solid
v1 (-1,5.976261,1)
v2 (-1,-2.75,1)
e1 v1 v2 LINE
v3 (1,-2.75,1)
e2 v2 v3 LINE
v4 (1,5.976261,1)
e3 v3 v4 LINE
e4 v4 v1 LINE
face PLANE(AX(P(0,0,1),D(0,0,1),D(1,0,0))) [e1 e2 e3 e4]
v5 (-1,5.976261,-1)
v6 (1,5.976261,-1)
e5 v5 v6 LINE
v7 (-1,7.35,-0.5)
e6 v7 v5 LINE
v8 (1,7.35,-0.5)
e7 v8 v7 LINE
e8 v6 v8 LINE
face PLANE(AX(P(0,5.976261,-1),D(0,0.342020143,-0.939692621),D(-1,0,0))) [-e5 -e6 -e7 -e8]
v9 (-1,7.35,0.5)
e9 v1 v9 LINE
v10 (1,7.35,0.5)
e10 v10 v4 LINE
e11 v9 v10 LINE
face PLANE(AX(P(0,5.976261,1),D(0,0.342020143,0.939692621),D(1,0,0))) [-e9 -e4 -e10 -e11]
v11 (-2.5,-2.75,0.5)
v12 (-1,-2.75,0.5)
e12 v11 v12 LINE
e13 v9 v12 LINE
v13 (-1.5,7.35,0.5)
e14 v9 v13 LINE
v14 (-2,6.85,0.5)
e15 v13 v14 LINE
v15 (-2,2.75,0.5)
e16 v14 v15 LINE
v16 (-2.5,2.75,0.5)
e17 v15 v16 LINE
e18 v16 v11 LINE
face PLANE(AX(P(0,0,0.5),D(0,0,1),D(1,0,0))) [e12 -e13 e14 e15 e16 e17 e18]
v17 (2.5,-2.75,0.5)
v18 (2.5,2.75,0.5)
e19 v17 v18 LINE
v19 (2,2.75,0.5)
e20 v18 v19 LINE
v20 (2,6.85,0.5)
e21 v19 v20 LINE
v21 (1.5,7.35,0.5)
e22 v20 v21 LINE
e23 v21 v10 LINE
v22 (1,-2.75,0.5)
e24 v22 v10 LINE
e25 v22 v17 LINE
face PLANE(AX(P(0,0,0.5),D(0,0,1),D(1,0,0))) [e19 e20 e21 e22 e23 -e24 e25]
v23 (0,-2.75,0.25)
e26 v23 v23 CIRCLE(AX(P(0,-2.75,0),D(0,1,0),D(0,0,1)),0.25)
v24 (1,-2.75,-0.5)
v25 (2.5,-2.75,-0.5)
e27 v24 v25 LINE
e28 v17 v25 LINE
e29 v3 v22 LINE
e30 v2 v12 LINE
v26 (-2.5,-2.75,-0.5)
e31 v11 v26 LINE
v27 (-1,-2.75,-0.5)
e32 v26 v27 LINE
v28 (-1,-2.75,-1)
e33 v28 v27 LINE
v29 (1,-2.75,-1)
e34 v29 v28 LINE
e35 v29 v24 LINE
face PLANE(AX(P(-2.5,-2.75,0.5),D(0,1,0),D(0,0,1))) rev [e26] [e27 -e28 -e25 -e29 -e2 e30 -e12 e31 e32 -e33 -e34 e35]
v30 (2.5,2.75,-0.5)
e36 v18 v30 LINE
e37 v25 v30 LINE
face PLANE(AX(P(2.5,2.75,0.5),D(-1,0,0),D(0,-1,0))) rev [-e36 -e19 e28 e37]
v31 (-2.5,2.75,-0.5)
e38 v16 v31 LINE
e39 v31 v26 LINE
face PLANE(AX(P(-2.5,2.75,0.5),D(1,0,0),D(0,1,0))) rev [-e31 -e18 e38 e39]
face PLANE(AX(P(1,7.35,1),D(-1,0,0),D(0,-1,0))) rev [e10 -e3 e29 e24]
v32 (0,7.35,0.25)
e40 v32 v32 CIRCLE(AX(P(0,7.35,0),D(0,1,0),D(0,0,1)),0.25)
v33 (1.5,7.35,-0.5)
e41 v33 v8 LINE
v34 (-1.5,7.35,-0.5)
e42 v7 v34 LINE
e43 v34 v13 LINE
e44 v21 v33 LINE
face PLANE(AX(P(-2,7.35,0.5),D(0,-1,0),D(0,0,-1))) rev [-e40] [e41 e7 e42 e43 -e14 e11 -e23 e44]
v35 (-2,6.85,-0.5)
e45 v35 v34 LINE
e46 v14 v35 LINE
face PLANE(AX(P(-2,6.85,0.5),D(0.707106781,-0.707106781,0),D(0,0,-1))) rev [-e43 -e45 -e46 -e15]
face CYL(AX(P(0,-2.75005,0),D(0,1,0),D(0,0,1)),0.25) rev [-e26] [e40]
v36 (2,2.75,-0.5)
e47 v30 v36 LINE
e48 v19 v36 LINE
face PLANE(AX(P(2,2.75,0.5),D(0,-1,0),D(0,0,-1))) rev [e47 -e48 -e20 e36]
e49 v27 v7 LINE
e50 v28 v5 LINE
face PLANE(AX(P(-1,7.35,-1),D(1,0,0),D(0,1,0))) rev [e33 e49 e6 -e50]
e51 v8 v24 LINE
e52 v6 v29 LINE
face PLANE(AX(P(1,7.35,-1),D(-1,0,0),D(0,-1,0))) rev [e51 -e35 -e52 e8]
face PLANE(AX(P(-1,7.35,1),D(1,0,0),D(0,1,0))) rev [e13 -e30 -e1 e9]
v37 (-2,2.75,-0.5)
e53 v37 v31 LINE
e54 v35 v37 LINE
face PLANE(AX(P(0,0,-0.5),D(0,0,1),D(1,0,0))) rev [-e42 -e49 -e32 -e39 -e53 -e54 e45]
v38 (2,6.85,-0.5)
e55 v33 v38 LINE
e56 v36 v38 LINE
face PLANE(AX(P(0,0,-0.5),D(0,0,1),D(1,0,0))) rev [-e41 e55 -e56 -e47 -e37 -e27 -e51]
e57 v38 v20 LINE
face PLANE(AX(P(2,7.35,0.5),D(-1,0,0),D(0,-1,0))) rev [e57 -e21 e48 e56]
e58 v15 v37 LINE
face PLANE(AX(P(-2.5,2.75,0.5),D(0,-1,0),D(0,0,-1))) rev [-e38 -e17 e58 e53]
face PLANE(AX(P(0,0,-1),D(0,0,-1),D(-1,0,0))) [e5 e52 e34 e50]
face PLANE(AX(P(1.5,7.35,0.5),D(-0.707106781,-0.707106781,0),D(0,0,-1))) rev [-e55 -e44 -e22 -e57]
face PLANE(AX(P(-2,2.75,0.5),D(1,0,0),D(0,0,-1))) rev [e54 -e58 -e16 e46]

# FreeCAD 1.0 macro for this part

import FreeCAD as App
import Part
import Sketcher
from FreeCAD import Vector


def edges_at(feature, points):
    """Names of the edges that pass closest to the given points."""
    edges = feature.Shape.Edges
    near = lambda p: min(range(len(edges)), key=lambda i: edges[i].distToShape(Part.Vertex(*p))[0])
    return sorted({f"Edge{near(p) + 1}" for p in points})


def add_polygon(sketch, points):
    """Adds a closed chain of lines whose ends are joined by coincident constraints."""
    first, n = sketch.GeometryCount, len(points)
    for a, b in zip(points, points[1:] + points[:1]):
        sketch.addGeometry(Part.LineSegment(App.Vector(*a, 0), App.Vector(*b, 0)), False)
    for i in range(n):
        sketch.addConstraint(Sketcher.Constraint("Coincident", first + i, 2, first + (i + 1) % n, 1))

doc = App.newDocument("Part")
body = doc.addObject("PartDesign::Body", "Body")

# Sketch on XY plane
sketch1 = body.newObject("Sketcher::SketchObject", "Sketch")
sketch1.AttachmentSupport = (doc.getObject("XY_Plane"), [""])
sketch1.MapMode = "FlatFace"
add_polygon(sketch1, [(-2, 7.35), (-2, 2.75), (-2.5, 2.75), (-2.5, -2.75), (2.5, -2.75), (2.5, 2.75), (2, 2.75), (2, 7.35)])  # lines 0-7
sketch1.addConstraint([
    Sketcher.Constraint("Vertical", 0),
    Sketcher.Constraint("Horizontal", 1),
    Sketcher.Constraint("Vertical", 2),
    Sketcher.Constraint("Horizontal", 3),
    Sketcher.Constraint("Vertical", 4),
    Sketcher.Constraint("Horizontal", 5),
    Sketcher.Constraint("Vertical", 6),
    Sketcher.Constraint("Horizontal", 7),
    Sketcher.Constraint("Symmetric", 1, 2, 3, 2, -1, 1),
    Sketcher.Constraint("Symmetric", 0, 2, 5, 2, -2),
    Sketcher.Constraint("DistanceX", 3, 1, 3, 2, 5.0),
    Sketcher.Constraint("DistanceX", 7, 2, 7, 1, 4.0),
    Sketcher.Constraint("DistanceY", 0, 2, 0, 1, 4.6),
    Sketcher.Constraint("DistanceY", 2, 2, 2, 1, 5.5),
])
pad1 = body.newObject("PartDesign::Pad", "Pad")
pad1.Profile = sketch1
pad1.Length = 1
pad1.Midplane = True

# Sketch on XY plane
sketch2 = body.newObject("Sketcher::SketchObject", "Sketch001")
sketch2.AttachmentSupport = (doc.getObject("XY_Plane"), [""])
sketch2.MapMode = "FlatFace"
sketch2.AttachmentOffset = App.Placement(Vector(0, 0, 0.5), App.Rotation())
add_polygon(sketch2, [(-1, 7.35), (-1, -2.75), (1, -2.75), (1, 7.35)])  # lines 0-3
sketch2.addConstraint([
    Sketcher.Constraint("Vertical", 0),
    Sketcher.Constraint("Horizontal", 1),
    Sketcher.Constraint("Vertical", 2),
    Sketcher.Constraint("Horizontal", 3),
    Sketcher.Constraint("DistanceX", 1, 1, 1, 2, 2.0),
    Sketcher.Constraint("DistanceY", 0, 2, 0, 1, 10.1),
    Sketcher.Constraint("DistanceX", 0, 2, -1, 1, 1.0),
    Sketcher.Constraint("DistanceY", 0, 2, -1, 1, 2.75),
])
pad2 = body.newObject("PartDesign::Pad", "Pad001")
pad2.Profile = sketch2
pad2.Length = 0.5
doc.recompute()

chamfer = body.newObject("PartDesign::Chamfer", "Chamfer")
chamfer.Base = (pad2, edges_at(pad2, [(0, 7.35, 1)]))
chamfer.ChamferType = "Two distances"
chamfer.Size = 0.5
chamfer.Size2 = 1.373739
chamfer.FlipDirection = True

# Sketch on XY plane
sketch3 = body.newObject("Sketcher::SketchObject", "Sketch002")
sketch3.AttachmentSupport = (doc.getObject("XY_Plane"), [""])
sketch3.MapMode = "FlatFace"
sketch3.AttachmentOffset = App.Placement(Vector(0, 0, -0.5), App.Rotation())
add_polygon(sketch3, [(1, 7.35), (1, -2.75), (-1, -2.75), (-1, 7.35)])  # lines 0-3
sketch3.addConstraint([
    Sketcher.Constraint("Vertical", 0),
    Sketcher.Constraint("Horizontal", 1),
    Sketcher.Constraint("Vertical", 2),
    Sketcher.Constraint("Horizontal", 3),
    Sketcher.Constraint("DistanceX", 1, 2, 1, 1, 2.0),
    Sketcher.Constraint("DistanceY", 0, 2, 0, 1, 10.1),
    Sketcher.Constraint("DistanceX", -1, 1, 0, 2, 1.0),
    Sketcher.Constraint("DistanceY", 0, 2, -1, 1, 2.75),
])
pad3 = body.newObject("PartDesign::Pad", "Pad002")
pad3.Profile = sketch3
pad3.Length = 0.5
pad3.Reversed = True
doc.recompute()

chamfer2 = body.newObject("PartDesign::Chamfer", "Chamfer001")
chamfer2.Base = (pad3, edges_at(pad3, [(0, 7.35, -1)]))
chamfer2.ChamferType = "Two distances"
chamfer2.Size = 0.5
chamfer2.Size2 = 1.373739
chamfer2.FlipDirection = True
doc.recompute()

chamfer3 = body.newObject("PartDesign::Chamfer", "Chamfer002")
chamfer3.Base = (chamfer2, edges_at(chamfer2, [(-2, 7.35, 0)]))
chamfer3.Size = 0.5
doc.recompute()

chamfer4 = body.newObject("PartDesign::Chamfer", "Chamfer003")
chamfer4.Base = (chamfer3, edges_at(chamfer3, [(2, 7.35, 0)]))
chamfer4.Size = 0.5

# Sketch on XZ plane
sketch4 = body.newObject("Sketcher::SketchObject", "Sketch003")
sketch4.AttachmentSupport = (doc.getObject("XZ_Plane"), [""])
sketch4.MapMode = "FlatFace"
sketch4.AttachmentOffset = App.Placement(Vector(0, 0, -7.35), App.Rotation())
sketch4.addGeometry(Part.Circle(Vector(0, 0, 0), Vector(0, 0, 1), 0.25), False)
sketch4.addConstraint([
    Sketcher.Constraint("Coincident", 0, 3, -1, 1),
    Sketcher.Constraint("Diameter", 0, 0.5),
])
pocket1 = body.newObject("PartDesign::Pocket", "Pocket")
pocket1.Profile = sketch4
pocket1.Type = "ThroughAll"
pocket1.Reversed = True

doc.recompute()
